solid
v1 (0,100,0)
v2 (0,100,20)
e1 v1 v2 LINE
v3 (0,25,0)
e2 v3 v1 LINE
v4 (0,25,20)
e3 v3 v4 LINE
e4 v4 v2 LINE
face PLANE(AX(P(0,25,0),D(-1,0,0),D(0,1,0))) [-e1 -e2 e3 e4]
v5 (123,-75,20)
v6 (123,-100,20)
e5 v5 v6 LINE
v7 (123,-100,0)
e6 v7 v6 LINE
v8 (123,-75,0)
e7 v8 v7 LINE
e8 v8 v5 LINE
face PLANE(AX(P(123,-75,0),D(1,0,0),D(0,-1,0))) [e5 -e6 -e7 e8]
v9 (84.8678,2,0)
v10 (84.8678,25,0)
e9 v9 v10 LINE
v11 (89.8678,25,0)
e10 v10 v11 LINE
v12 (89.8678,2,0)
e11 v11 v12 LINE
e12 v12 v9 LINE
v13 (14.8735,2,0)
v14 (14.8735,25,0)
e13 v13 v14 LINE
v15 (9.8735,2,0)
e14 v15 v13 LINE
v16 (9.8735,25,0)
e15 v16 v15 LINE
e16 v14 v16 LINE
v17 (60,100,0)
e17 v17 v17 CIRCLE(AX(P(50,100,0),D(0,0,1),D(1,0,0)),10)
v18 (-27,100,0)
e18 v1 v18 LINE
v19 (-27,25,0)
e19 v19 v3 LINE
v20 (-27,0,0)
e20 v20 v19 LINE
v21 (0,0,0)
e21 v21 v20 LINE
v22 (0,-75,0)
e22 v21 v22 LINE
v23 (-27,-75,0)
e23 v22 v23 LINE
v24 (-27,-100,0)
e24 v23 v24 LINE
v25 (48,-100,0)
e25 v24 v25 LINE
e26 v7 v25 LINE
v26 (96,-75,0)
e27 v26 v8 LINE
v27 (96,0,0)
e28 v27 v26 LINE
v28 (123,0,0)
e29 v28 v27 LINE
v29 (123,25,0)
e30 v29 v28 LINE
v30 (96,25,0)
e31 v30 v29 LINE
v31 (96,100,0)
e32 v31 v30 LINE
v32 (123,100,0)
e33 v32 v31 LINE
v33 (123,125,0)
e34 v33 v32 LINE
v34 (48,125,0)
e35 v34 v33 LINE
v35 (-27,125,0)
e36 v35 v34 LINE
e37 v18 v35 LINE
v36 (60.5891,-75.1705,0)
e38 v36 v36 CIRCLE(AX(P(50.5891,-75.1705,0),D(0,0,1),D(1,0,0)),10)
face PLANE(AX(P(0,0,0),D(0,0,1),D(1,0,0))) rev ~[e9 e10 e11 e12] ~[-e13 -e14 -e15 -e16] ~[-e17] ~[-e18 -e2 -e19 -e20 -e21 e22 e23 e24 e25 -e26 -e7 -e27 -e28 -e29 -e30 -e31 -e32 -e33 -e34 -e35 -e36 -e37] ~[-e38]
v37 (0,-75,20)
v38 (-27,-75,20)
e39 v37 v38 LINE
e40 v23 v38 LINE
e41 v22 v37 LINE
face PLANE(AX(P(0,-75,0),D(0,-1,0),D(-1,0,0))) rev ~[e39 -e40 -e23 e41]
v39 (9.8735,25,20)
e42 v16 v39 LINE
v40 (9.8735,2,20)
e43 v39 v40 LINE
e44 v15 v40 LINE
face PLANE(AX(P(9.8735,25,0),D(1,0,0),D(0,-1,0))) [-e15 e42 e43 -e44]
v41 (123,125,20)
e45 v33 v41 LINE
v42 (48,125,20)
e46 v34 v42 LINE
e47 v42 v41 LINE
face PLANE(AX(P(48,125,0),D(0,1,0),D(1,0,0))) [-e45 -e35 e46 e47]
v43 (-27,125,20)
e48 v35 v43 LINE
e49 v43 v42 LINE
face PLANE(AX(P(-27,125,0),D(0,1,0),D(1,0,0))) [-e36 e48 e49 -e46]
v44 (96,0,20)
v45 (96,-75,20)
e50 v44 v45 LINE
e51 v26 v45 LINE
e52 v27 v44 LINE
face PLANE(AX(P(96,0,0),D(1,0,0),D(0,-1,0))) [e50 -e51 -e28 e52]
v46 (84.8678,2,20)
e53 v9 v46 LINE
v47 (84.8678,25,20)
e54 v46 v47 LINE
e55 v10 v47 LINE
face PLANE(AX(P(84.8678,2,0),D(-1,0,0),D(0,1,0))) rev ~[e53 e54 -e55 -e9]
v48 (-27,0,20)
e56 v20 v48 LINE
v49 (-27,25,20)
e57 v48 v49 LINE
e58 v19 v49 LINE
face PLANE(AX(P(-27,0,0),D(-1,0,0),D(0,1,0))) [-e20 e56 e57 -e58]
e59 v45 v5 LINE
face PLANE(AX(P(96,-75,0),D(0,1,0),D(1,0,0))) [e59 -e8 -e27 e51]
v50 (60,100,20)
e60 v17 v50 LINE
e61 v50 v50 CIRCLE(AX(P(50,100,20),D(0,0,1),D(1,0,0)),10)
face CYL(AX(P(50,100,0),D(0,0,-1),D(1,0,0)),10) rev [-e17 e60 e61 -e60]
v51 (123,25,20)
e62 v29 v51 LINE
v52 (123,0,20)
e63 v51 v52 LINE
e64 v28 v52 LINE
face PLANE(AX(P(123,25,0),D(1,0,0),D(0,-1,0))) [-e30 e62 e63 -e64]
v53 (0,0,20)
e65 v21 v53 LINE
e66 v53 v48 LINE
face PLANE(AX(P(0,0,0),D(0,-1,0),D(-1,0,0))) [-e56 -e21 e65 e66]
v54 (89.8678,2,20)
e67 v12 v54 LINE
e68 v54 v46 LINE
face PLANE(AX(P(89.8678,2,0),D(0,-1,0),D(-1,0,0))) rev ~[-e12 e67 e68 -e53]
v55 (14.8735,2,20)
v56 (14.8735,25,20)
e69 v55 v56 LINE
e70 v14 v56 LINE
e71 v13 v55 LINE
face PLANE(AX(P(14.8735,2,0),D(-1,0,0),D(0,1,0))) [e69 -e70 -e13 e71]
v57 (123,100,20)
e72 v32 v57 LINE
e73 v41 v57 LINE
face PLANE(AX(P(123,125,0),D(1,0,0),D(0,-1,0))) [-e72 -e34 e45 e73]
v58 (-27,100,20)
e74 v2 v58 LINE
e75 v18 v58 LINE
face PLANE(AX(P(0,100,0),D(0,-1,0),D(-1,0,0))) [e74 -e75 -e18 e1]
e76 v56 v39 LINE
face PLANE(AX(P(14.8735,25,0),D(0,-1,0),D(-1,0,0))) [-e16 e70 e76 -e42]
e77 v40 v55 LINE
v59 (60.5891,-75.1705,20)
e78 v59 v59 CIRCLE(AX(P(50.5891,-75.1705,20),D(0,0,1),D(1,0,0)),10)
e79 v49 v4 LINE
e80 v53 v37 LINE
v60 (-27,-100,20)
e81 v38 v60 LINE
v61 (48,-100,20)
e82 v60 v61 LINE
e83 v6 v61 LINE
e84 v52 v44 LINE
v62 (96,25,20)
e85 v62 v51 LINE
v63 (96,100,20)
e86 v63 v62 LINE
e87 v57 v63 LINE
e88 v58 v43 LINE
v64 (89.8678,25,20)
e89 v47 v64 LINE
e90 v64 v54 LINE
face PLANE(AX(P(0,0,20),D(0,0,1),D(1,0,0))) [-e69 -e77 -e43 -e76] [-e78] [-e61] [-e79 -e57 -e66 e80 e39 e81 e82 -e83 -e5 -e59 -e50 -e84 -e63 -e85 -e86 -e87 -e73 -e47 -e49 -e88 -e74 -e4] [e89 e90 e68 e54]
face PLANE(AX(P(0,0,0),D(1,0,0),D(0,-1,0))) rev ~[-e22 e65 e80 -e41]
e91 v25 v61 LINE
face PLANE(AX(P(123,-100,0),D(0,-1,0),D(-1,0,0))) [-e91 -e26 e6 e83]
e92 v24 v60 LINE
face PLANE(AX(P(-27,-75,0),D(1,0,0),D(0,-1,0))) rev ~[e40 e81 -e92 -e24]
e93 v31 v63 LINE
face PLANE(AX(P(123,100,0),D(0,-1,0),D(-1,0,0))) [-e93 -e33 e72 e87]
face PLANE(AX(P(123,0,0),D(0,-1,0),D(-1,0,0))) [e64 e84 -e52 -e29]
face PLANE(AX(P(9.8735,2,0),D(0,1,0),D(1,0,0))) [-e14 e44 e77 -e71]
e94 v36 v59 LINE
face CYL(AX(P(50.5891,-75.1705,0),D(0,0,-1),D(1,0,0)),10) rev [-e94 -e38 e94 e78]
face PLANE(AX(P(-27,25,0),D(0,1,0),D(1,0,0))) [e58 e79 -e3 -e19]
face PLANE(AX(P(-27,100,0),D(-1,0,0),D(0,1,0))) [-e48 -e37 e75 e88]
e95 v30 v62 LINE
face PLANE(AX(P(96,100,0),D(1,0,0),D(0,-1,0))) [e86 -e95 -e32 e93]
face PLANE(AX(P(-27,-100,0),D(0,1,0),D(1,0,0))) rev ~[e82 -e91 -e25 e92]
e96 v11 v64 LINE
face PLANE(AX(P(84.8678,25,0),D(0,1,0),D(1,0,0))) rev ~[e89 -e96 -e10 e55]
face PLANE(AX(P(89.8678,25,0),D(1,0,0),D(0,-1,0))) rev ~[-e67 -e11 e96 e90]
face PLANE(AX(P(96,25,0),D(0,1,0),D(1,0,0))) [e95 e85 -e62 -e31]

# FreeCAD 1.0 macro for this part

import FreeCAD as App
import Part
import Sketcher
Q = App.Units.Quantity


def add_polygon(sketch, points):
    """Adds a closed chain of lines whose ends are joined by coincident constraints."""
    first, n = sketch.GeometryCount, len(points)
    for a, b in zip(points, points[1:] + points[:1]):
        sketch.addGeometry(Part.LineSegment(App.Vector(*a, 0), App.Vector(*b, 0)), False)
    for i in range(n):
        sketch.addConstraint(Sketcher.Constraint("Coincident", first + i, 2, first + (i + 1) % n, 1))

doc = App.newDocument("Part")
params = doc.addObject("Spreadsheet::Sheet", "Params")
for row, (alias, value) in enumerate([
    ("sketch1_diameter", "20 mm"),
    ("sketch1_width", "27 mm"),
    ("sketch1_width2", "150 mm"),
    ("sketch1_width3", "5 mm"),
    ("sketch1_height", "75 mm"),
    ("pad1_length", "20 mm"),
], start=1):
    params.set(f"A{row}", alias)
    params.set(f"B{row}", "=" + value)
    params.setAlias(f"B{row}", alias)

body = doc.addObject("PartDesign::Body", "Body")

sketch1 = doc.addObject("Sketcher::SketchObject", "Sketch")
body.addObject(sketch1)
sketch1.AttachmentSupport = (doc.XY_Plane, [""])
sketch1.MapMode = "FlatFace"
add_polygon(sketch1, [(-27, 0), (0, 0), (0, -75), (-27, -75), (-27, -100), (123, -100), (123, -75), (96, -75), (96, 0), (123, 0), (123, 25), (96, 25), (96, 100), (123, 100), (123, 125), (-27, 125), (-27, 100), (0, 100), (0, 25), (-27, 25)])
sketch1.addGeometry(Part.Circle(App.Vector(51, -75, 0), App.Vector(0, 0, 1), 10), False)
add_polygon(sketch1, [(10, 2), (10, 25), (15, 25), (15, 2)])
add_polygon(sketch1, [(85, 25), (90, 25), (90, 2), (85, 2)])
sketch1.addGeometry(Part.Circle(App.Vector(50, 100, 0), App.Vector(0, 0, 1), 10), False)
sketch1.addConstraint([
    Sketcher.Constraint("Horizontal", 0),
    Sketcher.Constraint("Vertical", 1),
    Sketcher.Constraint("Horizontal", 2),
    Sketcher.Constraint("Vertical", 3),
    Sketcher.Constraint("Horizontal", 4),
    Sketcher.Constraint("Vertical", 5),
    Sketcher.Constraint("Horizontal", 6),
    Sketcher.Constraint("Vertical", 7),
    Sketcher.Constraint("Horizontal", 8),
    Sketcher.Constraint("Vertical", 9),
    Sketcher.Constraint("Horizontal", 10),
    Sketcher.Constraint("Vertical", 11),
    Sketcher.Constraint("Horizontal", 12),
    Sketcher.Constraint("Vertical", 13),
    Sketcher.Constraint("Horizontal", 14),
    Sketcher.Constraint("Vertical", 15),
    Sketcher.Constraint("Horizontal", 16),
    Sketcher.Constraint("Vertical", 17),
    Sketcher.Constraint("Horizontal", 18),
    Sketcher.Constraint("Vertical", 19),
    Sketcher.Constraint("Vertical", 21),
    Sketcher.Constraint("Horizontal", 22),
    Sketcher.Constraint("Vertical", 23),
    Sketcher.Constraint("Horizontal", 24),
    Sketcher.Constraint("Horizontal", 25),
    Sketcher.Constraint("Vertical", 26),
    Sketcher.Constraint("Horizontal", 27),
    Sketcher.Constraint("Vertical", 28),
    Sketcher.Constraint("Coincident", 0, 2, -1, 1),
    Sketcher.Constraint("Equal", 20, 29),
    Sketcher.Constraint("Symmetric", 4, 2, 12, 2, -1),
    Sketcher.Constraint("Symmetric", 3, 2, 15, 2, -1),
    Sketcher.Constraint("PointOnObject", 7, 2, -1),
    Sketcher.Constraint("PointOnObject", 16, 2, -2),
    Sketcher.Constraint("Horizontal", 2, 2, 5, 2),
    Sketcher.Constraint("Horizontal", 29, 3, 11, 2),
    Sketcher.Constraint("Horizontal", 10, 2, 17, 2),
    Sketcher.Constraint("Horizontal", 18, 2, 21, 2),
    Sketcher.Constraint("Horizontal", 22, 2, 25, 2),
    Sketcher.Constraint("Horizontal", 24, 2, 26, 2),
    Sketcher.Constraint("Vertical", 5, 2, 8, 2),
    Sketcher.Constraint("Vertical", 7, 2, 10, 2),
    Sketcher.Constraint("Vertical", 15, 2, 18, 2),
    Sketcher.Constraint("Equal", 2, 6),
    Sketcher.Constraint("Equal", 24, 25),
    Sketcher.Constraint("Equal", 5, 9),
    Sketcher.Constraint("Equal", 9, 13),
    Sketcher.Constraint("Diameter", 20, Q("20 mm")),
    Sketcher.Constraint("DistanceX", 0, 1, 0, 2, Q("27 mm")),
    Sketcher.Constraint("DistanceX", 4, 1, 4, 2, Q("150 mm")),
    Sketcher.Constraint("DistanceX", 22, 1, 22, 2, Q("5 mm")),
    Sketcher.Constraint("DistanceY", 1, 2, 1, 1, Q("75 mm")),
    Sketcher.Constraint("DistanceY", 3, 2, 3, 1, Q("25 mm")),
    Sketcher.Constraint("DistanceY", 21, 1, 21, 2, Q("23 mm")),
    Sketcher.Constraint("DistanceX", -1, 1, 29, 3, Q("50 mm")),
    Sketcher.Constraint("DistanceX", -1, 1, 20, 3, Q("50.589 mm")),
    Sketcher.Constraint("DistanceY", 20, 3, -1, 1, Q("75.1705 mm")),
    Sketcher.Constraint("DistanceX", -1, 1, 21, 2, Q("9.8735 mm")),
    Sketcher.Constraint("DistanceX", -1, 1, 25, 2, Q("89.8678 mm")),
])
sketch1.setExpression("Constraints[75]", "Params.sketch1_diameter")
sketch1.setExpression("Constraints[76]", "Params.sketch1_width")
sketch1.setExpression("Constraints[77]", "Params.sketch1_width2")
sketch1.setExpression("Constraints[78]", "Params.sketch1_width3")
sketch1.setExpression("Constraints[79]", "Params.sketch1_height")
pad1 = doc.addObject("PartDesign::Pad", "Pad")
body.addObject(pad1)
pad1.Profile = sketch1
pad1.setExpression("Length", "Params.pad1_length")

doc.recompute()
